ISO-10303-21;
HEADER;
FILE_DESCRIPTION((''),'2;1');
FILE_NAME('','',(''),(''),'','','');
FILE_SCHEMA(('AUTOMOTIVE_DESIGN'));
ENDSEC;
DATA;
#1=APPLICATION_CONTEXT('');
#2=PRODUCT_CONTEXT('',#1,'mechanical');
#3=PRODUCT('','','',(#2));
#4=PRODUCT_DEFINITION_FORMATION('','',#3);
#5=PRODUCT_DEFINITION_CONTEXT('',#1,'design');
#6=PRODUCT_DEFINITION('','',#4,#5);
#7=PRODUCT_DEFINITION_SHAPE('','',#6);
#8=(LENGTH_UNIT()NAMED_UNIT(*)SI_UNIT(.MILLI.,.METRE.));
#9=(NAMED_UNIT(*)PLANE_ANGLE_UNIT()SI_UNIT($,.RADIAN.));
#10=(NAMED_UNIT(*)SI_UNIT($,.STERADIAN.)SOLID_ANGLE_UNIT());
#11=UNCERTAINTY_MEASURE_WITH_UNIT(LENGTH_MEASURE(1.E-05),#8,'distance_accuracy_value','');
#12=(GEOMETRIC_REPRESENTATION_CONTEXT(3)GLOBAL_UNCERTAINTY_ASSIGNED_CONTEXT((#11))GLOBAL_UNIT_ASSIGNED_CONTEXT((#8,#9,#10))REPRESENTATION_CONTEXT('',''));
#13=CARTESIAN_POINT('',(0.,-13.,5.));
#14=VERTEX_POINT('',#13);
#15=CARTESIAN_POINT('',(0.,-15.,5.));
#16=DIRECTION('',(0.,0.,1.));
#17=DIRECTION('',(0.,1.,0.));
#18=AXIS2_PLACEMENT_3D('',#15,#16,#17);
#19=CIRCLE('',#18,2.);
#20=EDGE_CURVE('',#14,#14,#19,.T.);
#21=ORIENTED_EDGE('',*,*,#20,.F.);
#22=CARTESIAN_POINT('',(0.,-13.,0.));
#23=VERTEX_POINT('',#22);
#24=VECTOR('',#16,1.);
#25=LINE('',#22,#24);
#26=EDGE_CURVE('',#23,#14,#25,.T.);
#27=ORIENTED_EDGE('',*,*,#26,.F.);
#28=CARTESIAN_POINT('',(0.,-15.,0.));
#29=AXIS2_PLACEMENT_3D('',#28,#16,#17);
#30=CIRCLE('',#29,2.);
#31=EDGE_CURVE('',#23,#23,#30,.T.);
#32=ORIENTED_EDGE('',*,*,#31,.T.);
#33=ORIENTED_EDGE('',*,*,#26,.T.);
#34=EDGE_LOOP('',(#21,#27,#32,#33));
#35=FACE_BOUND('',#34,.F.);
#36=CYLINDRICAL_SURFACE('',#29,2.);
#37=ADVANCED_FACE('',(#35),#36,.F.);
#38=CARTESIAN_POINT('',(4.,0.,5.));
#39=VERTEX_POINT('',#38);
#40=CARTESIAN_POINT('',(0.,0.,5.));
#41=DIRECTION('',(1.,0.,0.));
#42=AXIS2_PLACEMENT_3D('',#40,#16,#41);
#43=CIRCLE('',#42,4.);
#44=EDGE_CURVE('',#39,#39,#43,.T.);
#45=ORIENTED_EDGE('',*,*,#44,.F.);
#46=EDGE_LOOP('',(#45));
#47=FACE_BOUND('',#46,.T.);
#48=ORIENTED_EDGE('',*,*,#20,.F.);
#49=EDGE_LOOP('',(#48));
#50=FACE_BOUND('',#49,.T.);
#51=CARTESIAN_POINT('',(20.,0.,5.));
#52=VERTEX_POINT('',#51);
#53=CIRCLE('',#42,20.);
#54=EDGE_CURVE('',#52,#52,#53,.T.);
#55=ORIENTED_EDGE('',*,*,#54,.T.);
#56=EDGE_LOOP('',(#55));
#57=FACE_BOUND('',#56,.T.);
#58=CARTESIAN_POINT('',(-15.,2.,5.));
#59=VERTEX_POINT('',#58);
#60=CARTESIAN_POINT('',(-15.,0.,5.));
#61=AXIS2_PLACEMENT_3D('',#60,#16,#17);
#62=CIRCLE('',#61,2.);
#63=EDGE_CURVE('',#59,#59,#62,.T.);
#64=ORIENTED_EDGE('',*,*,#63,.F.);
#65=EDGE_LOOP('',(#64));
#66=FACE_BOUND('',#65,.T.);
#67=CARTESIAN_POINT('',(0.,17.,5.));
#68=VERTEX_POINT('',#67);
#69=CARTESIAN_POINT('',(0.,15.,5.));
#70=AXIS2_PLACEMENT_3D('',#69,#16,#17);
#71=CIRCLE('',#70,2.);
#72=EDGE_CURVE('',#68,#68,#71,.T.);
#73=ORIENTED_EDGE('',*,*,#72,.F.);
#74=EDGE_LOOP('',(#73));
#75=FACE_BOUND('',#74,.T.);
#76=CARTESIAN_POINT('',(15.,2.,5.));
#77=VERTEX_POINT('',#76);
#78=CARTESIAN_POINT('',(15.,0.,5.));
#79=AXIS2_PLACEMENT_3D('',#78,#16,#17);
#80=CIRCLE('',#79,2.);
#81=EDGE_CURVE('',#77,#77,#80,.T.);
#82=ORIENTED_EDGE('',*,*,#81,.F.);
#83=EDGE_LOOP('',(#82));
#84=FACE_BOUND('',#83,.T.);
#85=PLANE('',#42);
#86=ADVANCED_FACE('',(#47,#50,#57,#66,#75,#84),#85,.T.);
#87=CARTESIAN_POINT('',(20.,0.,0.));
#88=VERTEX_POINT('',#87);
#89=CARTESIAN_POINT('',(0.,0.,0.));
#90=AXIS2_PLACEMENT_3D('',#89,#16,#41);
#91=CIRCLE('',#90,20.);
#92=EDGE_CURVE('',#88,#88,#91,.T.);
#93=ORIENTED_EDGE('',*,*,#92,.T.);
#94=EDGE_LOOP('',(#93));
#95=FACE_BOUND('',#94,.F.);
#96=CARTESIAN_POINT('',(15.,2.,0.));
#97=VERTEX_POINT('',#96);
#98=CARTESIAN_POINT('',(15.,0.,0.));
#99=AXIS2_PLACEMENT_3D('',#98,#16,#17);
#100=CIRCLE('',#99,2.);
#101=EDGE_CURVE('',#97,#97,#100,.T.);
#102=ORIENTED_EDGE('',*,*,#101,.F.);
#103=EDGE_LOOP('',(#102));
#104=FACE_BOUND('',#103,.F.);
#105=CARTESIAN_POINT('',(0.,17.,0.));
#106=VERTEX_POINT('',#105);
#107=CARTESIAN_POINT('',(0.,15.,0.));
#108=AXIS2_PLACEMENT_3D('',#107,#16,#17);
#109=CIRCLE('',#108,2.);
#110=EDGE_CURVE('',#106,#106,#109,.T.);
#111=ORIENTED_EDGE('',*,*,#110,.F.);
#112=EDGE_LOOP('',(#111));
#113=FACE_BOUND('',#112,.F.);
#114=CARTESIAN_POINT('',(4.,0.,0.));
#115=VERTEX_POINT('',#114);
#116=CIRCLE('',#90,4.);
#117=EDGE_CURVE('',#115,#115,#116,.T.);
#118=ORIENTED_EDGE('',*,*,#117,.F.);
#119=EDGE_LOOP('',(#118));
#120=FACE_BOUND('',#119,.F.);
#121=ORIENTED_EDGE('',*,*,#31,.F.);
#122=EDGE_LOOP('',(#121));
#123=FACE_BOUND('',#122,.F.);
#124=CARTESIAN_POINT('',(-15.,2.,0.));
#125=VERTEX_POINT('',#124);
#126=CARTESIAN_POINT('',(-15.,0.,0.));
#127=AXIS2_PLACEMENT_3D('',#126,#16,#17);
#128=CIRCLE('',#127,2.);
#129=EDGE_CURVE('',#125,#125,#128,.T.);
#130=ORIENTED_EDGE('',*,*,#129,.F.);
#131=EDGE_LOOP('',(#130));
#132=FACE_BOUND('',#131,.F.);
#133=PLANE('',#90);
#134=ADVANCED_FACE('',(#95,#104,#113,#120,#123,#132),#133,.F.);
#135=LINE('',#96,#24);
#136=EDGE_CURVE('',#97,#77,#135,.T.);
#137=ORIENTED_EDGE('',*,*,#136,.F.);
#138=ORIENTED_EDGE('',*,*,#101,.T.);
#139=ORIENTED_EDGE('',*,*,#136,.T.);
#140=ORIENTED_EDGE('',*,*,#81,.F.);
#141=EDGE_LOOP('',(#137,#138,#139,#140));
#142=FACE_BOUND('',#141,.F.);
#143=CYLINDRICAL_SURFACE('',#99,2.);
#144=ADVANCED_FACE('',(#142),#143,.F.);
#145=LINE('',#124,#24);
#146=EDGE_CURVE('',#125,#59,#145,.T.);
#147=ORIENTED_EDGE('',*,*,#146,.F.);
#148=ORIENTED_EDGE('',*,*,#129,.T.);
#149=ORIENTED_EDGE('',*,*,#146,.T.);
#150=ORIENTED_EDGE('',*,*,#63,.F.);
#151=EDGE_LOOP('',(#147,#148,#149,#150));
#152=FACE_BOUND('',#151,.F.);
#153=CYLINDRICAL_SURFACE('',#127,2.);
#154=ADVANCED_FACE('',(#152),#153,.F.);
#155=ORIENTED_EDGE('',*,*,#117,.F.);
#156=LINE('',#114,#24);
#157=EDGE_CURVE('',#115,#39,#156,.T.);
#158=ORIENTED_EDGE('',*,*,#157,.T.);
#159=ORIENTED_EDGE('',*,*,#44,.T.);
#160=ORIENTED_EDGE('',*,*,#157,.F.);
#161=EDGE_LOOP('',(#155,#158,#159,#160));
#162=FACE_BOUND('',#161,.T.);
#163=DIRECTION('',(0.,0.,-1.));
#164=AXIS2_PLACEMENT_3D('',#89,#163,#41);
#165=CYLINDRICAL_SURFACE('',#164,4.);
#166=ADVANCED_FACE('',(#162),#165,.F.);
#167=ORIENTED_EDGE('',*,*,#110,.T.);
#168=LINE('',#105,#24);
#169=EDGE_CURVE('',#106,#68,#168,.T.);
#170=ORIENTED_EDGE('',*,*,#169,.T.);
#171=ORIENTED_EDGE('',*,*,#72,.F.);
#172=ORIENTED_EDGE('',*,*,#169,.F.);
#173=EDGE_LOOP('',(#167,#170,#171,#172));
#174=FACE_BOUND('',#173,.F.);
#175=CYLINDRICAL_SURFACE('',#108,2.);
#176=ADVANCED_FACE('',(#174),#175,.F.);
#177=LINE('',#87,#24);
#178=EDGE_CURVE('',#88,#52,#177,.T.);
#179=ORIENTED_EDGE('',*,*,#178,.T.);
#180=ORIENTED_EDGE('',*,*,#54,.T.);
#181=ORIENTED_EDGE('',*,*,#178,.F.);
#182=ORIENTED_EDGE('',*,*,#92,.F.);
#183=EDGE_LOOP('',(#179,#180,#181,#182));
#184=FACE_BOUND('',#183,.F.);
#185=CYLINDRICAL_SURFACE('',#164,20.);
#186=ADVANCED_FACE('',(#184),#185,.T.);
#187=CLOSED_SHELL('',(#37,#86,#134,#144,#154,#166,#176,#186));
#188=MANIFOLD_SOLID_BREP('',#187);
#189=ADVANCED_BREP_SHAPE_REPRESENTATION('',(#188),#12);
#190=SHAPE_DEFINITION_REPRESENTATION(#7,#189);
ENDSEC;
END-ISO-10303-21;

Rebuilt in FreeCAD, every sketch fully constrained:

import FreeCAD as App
import Part
import Sketcher
from FreeCAD import Vector
Q = App.Units.Quantity

doc = App.newDocument("Part")
body = doc.addObject("PartDesign::Body", "Body")

sketch1 = doc.addObject("Sketcher::SketchObject", "Sketch")
body.addObject(sketch1)
sketch1.AttachmentSupport = (doc.XY_Plane, [""])
sketch1.MapMode = "FlatFace"
sketch1.addGeometry([
    Part.Circle(Vector(0, 0, 0), Vector(0, 0, 1), 20),
    Part.Circle(Vector(0, 0, 0), Vector(0, 0, 1), 4),
], False)
sketch1.addConstraint([
    Sketcher.Constraint("Coincident", 0, 3, -1, 1),
    Sketcher.Constraint("Coincident", 1, 3, -1, 1),
    Sketcher.Constraint("Diameter", 0, Q("40 mm")),
    Sketcher.Constraint("Diameter", 1, Q("8 mm")),
])
pad1 = doc.addObject("PartDesign::Pad", "Pad")
body.addObject(pad1)
pad1.Profile = sketch1
pad1.Length = 5

sketch2 = doc.addObject("Sketcher::SketchObject", "Sketch001")
body.addObject(sketch2)
sketch2.AttachmentSupport = (doc.XY_Plane, [""])
sketch2.MapMode = "FlatFace"
sketch2.addGeometry(Part.Circle(Vector(0, 15, 0), Vector(0, 0, 1), 2), False)
sketch2.addConstraint([
    Sketcher.Constraint("PointOnObject", 0, 3, -2),
    Sketcher.Constraint("Diameter", 0, Q("4 mm")),
    Sketcher.Constraint("DistanceY", -1, 1, 0, 3, Q("15 mm")),
])
doc.recompute()
hole = doc.addObject("PartDesign::Hole", "Hole")
body.addObject(hole)
hole.Profile = sketch2
hole.ThreadType = "None"
hole.Diameter = 4
hole.DepthType = "ThroughAll"
hole.Reversed = True

sketch3 = doc.addObject("Sketcher::SketchObject", "Sketch002")
body.addObject(sketch3)
sketch3.AttachmentSupport = (doc.XY_Plane, [""])
sketch3.MapMode = "FlatFace"
sketch3.addGeometry(Part.Circle(Vector(15, 0, 0), Vector(0, 0, 1), 2), False)
sketch3.addConstraint([
    Sketcher.Constraint("PointOnObject", 0, 3, -1),
    Sketcher.Constraint("Diameter", 0, Q("4 mm")),
    Sketcher.Constraint("DistanceX", -1, 1, 0, 3, Q("15 mm")),
])
doc.recompute()
hole2 = doc.addObject("PartDesign::Hole", "Hole001")
body.addObject(hole2)
hole2.Profile = sketch3
hole2.ThreadType = "None"
hole2.Diameter = 4
hole2.DepthType = "ThroughAll"
hole2.Reversed = True

sketch4 = doc.addObject("Sketcher::SketchObject", "Sketch003")
body.addObject(sketch4)
sketch4.AttachmentSupport = (doc.XY_Plane, [""])
sketch4.MapMode = "FlatFace"
sketch4.addGeometry(Part.Circle(Vector(-15, 0, 0), Vector(0, 0, 1), 2), False)
sketch4.addConstraint([
    Sketcher.Constraint("PointOnObject", 0, 3, -1),
    Sketcher.Constraint("Diameter", 0, Q("4 mm")),
    Sketcher.Constraint("DistanceX", 0, 3, -1, 1, Q("15 mm")),
])
doc.recompute()
hole3 = doc.addObject("PartDesign::Hole", "Hole002")
body.addObject(hole3)
hole3.Profile = sketch4
hole3.ThreadType = "None"
hole3.Diameter = 4
hole3.DepthType = "ThroughAll"
hole3.Reversed = True

sketch5 = doc.addObject("Sketcher::SketchObject", "Sketch004")
body.addObject(sketch5)
sketch5.AttachmentSupport = (doc.XY_Plane, [""])
sketch5.MapMode = "FlatFace"
sketch5.addGeometry(Part.Circle(Vector(0, -15, 0), Vector(0, 0, 1), 2), False)
sketch5.addConstraint([
    Sketcher.Constraint("PointOnObject", 0, 3, -2),
    Sketcher.Constraint("Diameter", 0, Q("4 mm")),
    Sketcher.Constraint("DistanceY", 0, 3, -1, 1, Q("15 mm")),
])
doc.recompute()
hole4 = doc.addObject("PartDesign::Hole", "Hole003")
body.addObject(hole4)
hole4.Profile = sketch5
hole4.ThreadType = "None"
hole4.Diameter = 4
hole4.DepthType = "ThroughAll"
hole4.Reversed = True

doc.recompute()
